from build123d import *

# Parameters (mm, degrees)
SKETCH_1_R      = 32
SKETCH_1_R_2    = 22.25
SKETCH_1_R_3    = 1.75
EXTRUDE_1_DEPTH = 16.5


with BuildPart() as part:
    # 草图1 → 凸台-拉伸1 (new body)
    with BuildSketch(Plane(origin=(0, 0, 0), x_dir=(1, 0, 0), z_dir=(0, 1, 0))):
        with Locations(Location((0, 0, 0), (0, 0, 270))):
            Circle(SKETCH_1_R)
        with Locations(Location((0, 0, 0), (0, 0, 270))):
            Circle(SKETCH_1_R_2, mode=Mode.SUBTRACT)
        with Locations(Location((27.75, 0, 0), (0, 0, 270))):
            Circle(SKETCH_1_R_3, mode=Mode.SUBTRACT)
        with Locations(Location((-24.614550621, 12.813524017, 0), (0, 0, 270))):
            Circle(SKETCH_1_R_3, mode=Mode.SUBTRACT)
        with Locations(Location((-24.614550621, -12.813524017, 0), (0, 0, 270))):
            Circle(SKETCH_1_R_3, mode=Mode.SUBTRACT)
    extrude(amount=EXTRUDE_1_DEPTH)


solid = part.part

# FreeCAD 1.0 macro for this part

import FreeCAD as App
import Part
import Sketcher
from FreeCAD import Vector
Q = App.Units.Quantity

doc = App.newDocument("Part")
body = doc.addObject("PartDesign::Body", "Body")

# Sketch on XZ plane
sketch1 = body.newObject("Sketcher::SketchObject", "Sketch")
sketch1.AttachmentSupport = (doc.getObject("XZ_Plane"), [""])
sketch1.MapMode = "FlatFace"
sketch1.addGeometry([
    Part.Circle(Vector(0, 0, 0), Vector(0, 0, 1), 32),  # 0
    Part.Circle(Vector(-24.6, -12.8, 0), Vector(0, 0, 1), 1.8),  # 1
    Part.Circle(Vector(-24.6, 12.8, 0), Vector(0, 0, 1), 1.8),  # 2
    Part.Circle(Vector(0, 0, 0), Vector(0, 0, 1), 22.2),  # 3
    Part.Circle(Vector(27.8, 0, 0), Vector(0, 0, 1), 1.8),  # 4
], False)
sketch1.addConstraint([
    Sketcher.Constraint("Coincident", 0, 3, -1, 1),
    Sketcher.Constraint("Coincident", 3, 3, -1, 1),
    Sketcher.Constraint("Equal", 1, 2),
    Sketcher.Constraint("Equal", 2, 4),
    Sketcher.Constraint("Symmetric", 1, 3, 2, 3, -1),
    Sketcher.Constraint("PointOnObject", 4, 3, -1),
    Sketcher.Constraint("Diameter", 0, Q("64 mm")),
    Sketcher.Constraint("Diameter", 1, Q("3.5 mm")),
    Sketcher.Constraint("Diameter", 3, Q("44.5 mm")),
    Sketcher.Constraint("DistanceX", -1, 1, 4, 3, Q("27.75 mm")),
    Sketcher.Constraint("DistanceX", 1, 3, -1, 1, Q("24.614551 mm")),
    Sketcher.Constraint("DistanceY", 1, 3, 2, 3, Q("25.627048 mm")),
])
pad1 = body.newObject("PartDesign::Pad", "Pad")
pad1.Profile = sketch1
pad1.Length = 16.5
pad1.Reversed = True

doc.recompute()
